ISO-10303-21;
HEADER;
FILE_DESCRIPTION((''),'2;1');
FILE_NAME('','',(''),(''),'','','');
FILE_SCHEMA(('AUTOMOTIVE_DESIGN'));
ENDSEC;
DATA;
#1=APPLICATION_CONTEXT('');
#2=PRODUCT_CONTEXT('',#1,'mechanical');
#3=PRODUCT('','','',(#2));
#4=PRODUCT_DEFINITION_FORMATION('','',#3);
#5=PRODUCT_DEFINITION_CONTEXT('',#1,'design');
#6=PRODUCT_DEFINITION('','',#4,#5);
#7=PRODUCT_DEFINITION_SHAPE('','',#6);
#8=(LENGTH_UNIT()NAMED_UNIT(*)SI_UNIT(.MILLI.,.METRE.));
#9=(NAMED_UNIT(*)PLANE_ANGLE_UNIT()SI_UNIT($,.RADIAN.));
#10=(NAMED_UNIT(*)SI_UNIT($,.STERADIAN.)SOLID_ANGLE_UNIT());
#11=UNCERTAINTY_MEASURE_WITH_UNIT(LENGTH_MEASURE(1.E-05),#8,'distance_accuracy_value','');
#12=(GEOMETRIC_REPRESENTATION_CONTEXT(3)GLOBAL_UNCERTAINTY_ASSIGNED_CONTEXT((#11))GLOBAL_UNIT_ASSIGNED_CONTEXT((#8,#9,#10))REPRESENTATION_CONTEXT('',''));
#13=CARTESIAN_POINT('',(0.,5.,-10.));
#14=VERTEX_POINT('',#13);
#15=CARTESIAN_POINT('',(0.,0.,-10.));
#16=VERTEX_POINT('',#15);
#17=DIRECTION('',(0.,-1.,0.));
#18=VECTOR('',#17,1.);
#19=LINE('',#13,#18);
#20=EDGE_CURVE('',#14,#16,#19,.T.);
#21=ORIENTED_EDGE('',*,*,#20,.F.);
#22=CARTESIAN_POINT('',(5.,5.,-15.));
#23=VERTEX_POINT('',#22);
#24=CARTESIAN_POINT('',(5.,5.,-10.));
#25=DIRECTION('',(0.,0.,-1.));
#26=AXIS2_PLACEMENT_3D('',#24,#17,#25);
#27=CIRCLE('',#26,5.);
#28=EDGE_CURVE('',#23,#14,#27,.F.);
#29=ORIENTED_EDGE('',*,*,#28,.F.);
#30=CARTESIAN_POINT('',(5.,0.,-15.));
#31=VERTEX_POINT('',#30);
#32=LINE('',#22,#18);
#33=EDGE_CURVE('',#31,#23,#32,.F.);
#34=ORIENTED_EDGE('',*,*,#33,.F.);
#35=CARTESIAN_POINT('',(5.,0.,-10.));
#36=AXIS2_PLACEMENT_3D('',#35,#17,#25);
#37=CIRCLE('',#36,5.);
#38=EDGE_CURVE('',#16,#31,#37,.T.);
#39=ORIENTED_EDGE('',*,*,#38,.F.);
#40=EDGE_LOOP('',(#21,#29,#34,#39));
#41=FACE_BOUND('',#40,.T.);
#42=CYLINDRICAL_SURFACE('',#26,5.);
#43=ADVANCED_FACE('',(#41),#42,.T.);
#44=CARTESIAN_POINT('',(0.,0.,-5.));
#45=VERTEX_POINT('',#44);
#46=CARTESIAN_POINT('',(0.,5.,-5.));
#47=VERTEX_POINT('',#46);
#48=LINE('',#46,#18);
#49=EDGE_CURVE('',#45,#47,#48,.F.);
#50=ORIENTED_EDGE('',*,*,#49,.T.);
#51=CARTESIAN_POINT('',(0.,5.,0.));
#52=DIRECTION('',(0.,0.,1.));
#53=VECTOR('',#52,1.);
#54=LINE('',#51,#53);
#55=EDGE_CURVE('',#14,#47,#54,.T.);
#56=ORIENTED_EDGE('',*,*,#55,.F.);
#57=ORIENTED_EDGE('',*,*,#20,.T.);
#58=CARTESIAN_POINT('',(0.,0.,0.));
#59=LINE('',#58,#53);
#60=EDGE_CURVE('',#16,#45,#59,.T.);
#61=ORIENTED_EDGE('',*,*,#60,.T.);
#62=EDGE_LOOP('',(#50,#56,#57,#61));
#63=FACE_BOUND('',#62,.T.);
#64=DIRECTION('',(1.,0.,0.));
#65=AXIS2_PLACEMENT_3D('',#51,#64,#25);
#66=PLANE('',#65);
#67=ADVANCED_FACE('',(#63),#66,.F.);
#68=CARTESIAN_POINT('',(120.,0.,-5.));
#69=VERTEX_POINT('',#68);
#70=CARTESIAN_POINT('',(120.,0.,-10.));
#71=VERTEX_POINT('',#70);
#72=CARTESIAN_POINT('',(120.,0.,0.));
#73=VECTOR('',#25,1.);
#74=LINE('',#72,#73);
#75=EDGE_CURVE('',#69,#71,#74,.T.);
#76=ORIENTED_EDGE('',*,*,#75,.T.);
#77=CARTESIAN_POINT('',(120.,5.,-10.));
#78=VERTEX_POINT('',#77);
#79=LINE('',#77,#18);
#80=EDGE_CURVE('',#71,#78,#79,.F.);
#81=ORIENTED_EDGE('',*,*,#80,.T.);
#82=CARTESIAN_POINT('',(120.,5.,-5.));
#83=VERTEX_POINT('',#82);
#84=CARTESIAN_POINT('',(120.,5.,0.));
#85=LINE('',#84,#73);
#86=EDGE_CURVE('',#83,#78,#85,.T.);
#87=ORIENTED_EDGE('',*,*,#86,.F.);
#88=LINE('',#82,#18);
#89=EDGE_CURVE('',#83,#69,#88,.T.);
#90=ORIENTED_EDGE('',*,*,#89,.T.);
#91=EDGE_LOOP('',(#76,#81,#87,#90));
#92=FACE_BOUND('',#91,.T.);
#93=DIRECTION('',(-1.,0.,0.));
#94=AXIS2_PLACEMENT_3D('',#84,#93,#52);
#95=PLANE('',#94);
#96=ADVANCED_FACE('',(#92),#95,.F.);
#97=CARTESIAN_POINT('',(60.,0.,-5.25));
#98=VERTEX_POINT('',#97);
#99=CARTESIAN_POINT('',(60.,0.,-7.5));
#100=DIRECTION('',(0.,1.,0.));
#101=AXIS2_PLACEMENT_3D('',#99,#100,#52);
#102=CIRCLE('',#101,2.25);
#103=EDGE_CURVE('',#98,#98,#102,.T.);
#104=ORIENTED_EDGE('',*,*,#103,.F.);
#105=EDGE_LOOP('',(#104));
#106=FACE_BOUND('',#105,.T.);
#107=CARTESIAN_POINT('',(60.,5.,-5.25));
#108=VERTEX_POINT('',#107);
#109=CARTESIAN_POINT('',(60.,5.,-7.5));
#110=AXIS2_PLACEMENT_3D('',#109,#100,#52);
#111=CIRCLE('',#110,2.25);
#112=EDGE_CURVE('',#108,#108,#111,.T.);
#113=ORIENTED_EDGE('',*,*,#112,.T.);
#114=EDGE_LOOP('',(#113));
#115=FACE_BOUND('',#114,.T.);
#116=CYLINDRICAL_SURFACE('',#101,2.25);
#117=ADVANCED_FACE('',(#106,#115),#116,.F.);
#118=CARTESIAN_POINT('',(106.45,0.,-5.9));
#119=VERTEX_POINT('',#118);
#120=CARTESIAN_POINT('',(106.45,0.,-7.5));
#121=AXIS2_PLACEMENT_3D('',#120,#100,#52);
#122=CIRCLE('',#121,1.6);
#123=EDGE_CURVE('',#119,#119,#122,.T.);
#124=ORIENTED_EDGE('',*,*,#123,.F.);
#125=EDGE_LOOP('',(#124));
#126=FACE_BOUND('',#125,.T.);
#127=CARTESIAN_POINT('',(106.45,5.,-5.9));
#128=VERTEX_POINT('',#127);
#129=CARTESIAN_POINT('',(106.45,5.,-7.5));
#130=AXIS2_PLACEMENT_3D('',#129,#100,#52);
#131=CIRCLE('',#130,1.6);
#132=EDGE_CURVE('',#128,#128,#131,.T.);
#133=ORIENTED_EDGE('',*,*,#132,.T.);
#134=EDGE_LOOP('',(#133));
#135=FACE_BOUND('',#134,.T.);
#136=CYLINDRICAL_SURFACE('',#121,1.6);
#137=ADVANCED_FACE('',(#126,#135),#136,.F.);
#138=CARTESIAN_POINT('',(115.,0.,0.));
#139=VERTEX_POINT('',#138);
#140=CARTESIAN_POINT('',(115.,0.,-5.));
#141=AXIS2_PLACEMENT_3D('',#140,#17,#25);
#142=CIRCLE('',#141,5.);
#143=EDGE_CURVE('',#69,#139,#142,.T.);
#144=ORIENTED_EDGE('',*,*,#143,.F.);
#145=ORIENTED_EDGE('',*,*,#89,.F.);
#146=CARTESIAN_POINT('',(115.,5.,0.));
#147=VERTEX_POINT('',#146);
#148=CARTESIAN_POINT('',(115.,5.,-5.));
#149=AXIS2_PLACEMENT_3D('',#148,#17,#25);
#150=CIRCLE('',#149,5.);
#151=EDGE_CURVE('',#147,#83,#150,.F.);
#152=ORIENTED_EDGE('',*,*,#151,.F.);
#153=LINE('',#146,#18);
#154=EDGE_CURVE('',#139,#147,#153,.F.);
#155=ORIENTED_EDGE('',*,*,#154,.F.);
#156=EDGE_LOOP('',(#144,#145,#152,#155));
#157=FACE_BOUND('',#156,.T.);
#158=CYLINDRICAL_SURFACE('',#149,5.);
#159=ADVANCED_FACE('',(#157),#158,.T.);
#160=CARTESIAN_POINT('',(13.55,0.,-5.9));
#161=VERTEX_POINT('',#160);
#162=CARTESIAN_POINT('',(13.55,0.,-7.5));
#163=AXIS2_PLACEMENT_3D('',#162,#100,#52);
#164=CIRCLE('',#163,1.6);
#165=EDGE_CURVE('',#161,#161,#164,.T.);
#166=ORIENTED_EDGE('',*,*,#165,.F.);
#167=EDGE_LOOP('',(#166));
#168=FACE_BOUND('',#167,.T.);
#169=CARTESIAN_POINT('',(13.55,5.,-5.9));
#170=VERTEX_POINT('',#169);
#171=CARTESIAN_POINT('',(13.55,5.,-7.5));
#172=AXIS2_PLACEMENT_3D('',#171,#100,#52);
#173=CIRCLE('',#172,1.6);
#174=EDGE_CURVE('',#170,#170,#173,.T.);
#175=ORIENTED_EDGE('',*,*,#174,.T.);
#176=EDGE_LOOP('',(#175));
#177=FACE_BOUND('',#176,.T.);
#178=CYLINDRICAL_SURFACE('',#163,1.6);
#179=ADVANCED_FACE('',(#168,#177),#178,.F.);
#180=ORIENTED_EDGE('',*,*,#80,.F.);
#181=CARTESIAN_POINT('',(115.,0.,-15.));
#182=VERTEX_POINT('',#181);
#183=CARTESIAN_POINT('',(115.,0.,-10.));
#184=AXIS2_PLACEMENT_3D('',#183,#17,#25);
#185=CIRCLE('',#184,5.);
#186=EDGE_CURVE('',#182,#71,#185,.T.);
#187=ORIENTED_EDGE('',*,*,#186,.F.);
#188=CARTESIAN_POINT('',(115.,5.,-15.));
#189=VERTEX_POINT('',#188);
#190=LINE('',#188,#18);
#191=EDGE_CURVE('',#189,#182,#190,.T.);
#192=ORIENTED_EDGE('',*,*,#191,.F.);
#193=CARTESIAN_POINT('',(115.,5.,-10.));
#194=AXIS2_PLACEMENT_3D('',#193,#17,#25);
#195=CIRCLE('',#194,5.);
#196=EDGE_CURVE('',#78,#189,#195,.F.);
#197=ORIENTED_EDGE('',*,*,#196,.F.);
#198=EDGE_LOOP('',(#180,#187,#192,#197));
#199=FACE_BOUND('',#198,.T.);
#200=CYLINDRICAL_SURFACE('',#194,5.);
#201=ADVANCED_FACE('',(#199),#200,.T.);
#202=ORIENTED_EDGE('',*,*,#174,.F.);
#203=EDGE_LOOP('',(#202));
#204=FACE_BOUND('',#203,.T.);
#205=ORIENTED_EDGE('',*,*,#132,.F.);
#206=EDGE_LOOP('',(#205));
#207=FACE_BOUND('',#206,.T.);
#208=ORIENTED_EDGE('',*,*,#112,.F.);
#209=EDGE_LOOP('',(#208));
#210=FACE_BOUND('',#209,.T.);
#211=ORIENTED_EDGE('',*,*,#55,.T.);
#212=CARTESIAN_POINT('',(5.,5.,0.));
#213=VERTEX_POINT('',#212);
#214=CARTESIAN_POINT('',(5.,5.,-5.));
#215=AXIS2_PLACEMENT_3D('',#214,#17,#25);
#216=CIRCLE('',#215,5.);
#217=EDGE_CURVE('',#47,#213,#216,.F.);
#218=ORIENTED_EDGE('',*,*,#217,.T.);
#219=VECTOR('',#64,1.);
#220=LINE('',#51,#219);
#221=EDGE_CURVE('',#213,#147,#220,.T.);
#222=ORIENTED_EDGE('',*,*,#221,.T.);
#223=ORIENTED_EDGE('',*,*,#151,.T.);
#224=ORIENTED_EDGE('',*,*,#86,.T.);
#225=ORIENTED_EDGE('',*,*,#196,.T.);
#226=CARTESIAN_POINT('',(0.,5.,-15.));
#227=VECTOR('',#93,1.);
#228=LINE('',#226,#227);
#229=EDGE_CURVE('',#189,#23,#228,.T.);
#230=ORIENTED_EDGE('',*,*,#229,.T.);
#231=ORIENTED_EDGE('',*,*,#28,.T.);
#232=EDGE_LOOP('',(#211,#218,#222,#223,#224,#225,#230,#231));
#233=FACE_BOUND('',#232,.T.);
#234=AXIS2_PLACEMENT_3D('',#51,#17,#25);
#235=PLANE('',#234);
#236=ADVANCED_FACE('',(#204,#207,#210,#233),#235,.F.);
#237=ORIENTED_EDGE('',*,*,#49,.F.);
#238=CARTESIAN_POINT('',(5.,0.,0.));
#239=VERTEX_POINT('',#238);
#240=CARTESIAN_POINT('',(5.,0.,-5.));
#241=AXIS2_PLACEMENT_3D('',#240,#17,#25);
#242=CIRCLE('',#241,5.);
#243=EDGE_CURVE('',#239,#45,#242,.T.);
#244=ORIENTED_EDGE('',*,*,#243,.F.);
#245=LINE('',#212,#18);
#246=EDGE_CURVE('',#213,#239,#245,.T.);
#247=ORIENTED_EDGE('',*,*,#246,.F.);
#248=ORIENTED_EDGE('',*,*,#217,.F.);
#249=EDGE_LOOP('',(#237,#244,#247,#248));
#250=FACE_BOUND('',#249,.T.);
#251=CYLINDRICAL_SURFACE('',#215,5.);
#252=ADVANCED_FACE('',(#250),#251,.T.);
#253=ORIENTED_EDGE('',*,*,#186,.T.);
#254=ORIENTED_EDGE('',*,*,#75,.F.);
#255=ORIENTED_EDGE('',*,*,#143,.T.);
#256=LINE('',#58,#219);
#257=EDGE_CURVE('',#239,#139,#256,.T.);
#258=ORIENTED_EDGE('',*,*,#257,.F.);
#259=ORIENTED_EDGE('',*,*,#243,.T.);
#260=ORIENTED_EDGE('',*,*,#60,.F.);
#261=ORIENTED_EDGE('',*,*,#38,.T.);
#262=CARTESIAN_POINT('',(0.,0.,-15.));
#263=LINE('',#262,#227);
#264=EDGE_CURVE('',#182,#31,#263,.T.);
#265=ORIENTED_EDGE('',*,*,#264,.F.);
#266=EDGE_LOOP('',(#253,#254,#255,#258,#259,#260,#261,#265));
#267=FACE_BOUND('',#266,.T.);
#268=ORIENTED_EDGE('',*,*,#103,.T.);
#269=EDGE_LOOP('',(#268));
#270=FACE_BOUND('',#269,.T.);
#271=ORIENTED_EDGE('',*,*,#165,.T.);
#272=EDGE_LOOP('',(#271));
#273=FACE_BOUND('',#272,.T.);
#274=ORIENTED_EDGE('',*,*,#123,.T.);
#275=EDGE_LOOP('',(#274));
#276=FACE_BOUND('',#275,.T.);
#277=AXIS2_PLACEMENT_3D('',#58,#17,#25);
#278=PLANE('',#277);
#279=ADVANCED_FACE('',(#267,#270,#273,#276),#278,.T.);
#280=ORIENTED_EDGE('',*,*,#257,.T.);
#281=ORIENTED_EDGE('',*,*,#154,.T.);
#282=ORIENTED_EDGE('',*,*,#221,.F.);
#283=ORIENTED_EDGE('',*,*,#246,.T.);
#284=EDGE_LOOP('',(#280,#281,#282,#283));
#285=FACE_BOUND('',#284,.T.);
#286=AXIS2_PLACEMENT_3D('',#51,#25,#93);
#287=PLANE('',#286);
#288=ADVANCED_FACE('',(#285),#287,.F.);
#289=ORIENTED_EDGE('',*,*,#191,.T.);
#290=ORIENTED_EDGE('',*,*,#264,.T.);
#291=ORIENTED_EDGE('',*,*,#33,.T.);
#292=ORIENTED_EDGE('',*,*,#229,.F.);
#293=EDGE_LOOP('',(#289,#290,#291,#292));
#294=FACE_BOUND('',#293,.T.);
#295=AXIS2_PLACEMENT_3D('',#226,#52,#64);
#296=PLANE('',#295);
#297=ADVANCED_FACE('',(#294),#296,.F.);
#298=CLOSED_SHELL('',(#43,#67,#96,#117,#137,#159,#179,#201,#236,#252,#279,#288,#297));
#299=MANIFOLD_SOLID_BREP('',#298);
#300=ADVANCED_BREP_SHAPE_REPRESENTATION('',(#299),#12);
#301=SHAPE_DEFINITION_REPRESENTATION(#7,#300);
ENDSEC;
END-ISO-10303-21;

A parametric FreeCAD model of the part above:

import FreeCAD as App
import Part
import Sketcher
from FreeCAD import Vector


def edges_at(feature, points):
    """Names of the edges that pass closest to the given points."""
    edges = feature.Shape.Edges
    near = lambda p: min(range(len(edges)), key=lambda i: edges[i].distToShape(Part.Vertex(*p))[0])
    return sorted({f"Edge{near(p) + 1}" for p in points})

doc = App.newDocument("Part")
params = doc.addObject("Spreadsheet::Sheet", "Params")
for row, (alias, value) in enumerate([
    ("sketch1_width", "120 mm"),
    ("sketch1_height", "15 mm"),
    ("pad1_length", "5 mm"),
    ("sketch2_diameter", "3.2 mm"),
    ("sketch2_diameter2", "4.5 mm"),
    ("fillet_radius", "5 mm"),
], start=1):
    params.set(f"A{row}", alias)
    params.set(f"B{row}", "=" + value)
    params.setAlias(f"B{row}", alias)

body = doc.addObject("PartDesign::Body", "Body")

sketch1 = doc.addObject("Sketcher::SketchObject", "Sketch")
body.addObject(sketch1)
sketch1.AttachmentSupport = (doc.XZ_Plane, [""])
sketch1.MapMode = "FlatFace"
sketch1.addGeometry(Part.LineSegment(Vector(0, -15, 0), Vector(0, 0, 0)), False)
sketch1.addGeometry(Part.LineSegment(Vector(0, 0, 0), Vector(120, 0, 0)), False)
sketch1.addGeometry(Part.LineSegment(Vector(120, 0, 0), Vector(120, -15, 0)), False)
sketch1.addGeometry(Part.LineSegment(Vector(120, -15, 0), Vector(0, -15, 0)), False)
sketch1.addConstraint(Sketcher.Constraint("Coincident", 0, 2, 1, 1))
sketch1.addConstraint(Sketcher.Constraint("Coincident", 1, 2, 2, 1))
sketch1.addConstraint(Sketcher.Constraint("Coincident", 2, 2, 3, 1))
sketch1.addConstraint(Sketcher.Constraint("Coincident", 3, 2, 0, 1))
sketch1.addConstraint(Sketcher.Constraint("Vertical", 0))
sketch1.addConstraint(Sketcher.Constraint("Horizontal", 1))
sketch1.addConstraint(Sketcher.Constraint("Vertical", 2))
sketch1.addConstraint(Sketcher.Constraint("Horizontal", 3))
sketch1.addConstraint(Sketcher.Constraint("Coincident", 0, 2, -1, 1))
sketch1.addConstraint(Sketcher.Constraint("DistanceX", 1, 1, 1, 2, 120.0))
sketch1.addConstraint(Sketcher.Constraint("DistanceY", 0, 1, 0, 2, 15.0))
sketch1.setExpression("Constraints[9]", "Params.sketch1_width")
sketch1.setExpression("Constraints[10]", "Params.sketch1_height")
pad1 = doc.addObject("PartDesign::Pad", "Pad")
body.addObject(pad1)
pad1.Profile = sketch1
pad1.setExpression("Length", "Params.pad1_length")
pad1.Reversed = True

sketch2 = doc.addObject("Sketcher::SketchObject", "Sketch001")
body.addObject(sketch2)
sketch2.AttachmentSupport = (doc.XZ_Plane, [""])
sketch2.MapMode = "FlatFace"
sketch2.AttachmentOffset = App.Placement(Vector(0, 0, -5), App.Rotation())
sketch2.addGeometry(Part.Circle(Vector(13.55, -7.5, 0), Vector(0, 0, 1), 1.6), False)
sketch2.addGeometry(Part.Circle(Vector(106.45, -7.5, 0), Vector(0, 0, 1), 1.6), False)
sketch2.addGeometry(Part.Circle(Vector(60, -7.5, 0), Vector(0, 0, 1), 2.25), False)
sketch2.addConstraint(Sketcher.Constraint("Equal", 0, 1))
sketch2.addConstraint(Sketcher.Constraint("Horizontal", 0, 3, 1, 3))
sketch2.addConstraint(Sketcher.Constraint("Horizontal", 1, 3, 2, 3))
sketch2.addConstraint(Sketcher.Constraint("Diameter", 0, 3.2))
sketch2.addConstraint(Sketcher.Constraint("Diameter", 2, 4.5))
sketch2.addConstraint(Sketcher.Constraint("DistanceX", -1, 1, 2, 3, 60.0))
sketch2.addConstraint(Sketcher.Constraint("DistanceY", 0, 3, -1, 1, 7.5))
sketch2.addConstraint(Sketcher.Constraint("DistanceX", 0, 3, 1, 3, 92.9))
sketch2.addConstraint(Sketcher.Constraint("DistanceX", -1, 1, 0, 3, 13.55))
sketch2.setExpression("Constraints[3]", "Params.sketch2_diameter")
sketch2.setExpression("Constraints[4]", "Params.sketch2_diameter2")
pocket1 = doc.addObject("PartDesign::Pocket", "Pocket")
body.addObject(pocket1)
pocket1.Profile = sketch2
pocket1.Type = "ThroughAll"
pocket1.Reversed = True
doc.recompute()

fillet = doc.addObject("PartDesign::Fillet", "Fillet")
body.addObject(fillet)
fillet.Base = (pocket1, edges_at(pocket1, [
    (0, 2.5, -15),
    (120, 2.5, -15),
    (120, 2.5, 0),
    (0, 2.5, 0),
]))
fillet.setExpression("Radius", "Params.fillet_radius")

doc.recompute()
